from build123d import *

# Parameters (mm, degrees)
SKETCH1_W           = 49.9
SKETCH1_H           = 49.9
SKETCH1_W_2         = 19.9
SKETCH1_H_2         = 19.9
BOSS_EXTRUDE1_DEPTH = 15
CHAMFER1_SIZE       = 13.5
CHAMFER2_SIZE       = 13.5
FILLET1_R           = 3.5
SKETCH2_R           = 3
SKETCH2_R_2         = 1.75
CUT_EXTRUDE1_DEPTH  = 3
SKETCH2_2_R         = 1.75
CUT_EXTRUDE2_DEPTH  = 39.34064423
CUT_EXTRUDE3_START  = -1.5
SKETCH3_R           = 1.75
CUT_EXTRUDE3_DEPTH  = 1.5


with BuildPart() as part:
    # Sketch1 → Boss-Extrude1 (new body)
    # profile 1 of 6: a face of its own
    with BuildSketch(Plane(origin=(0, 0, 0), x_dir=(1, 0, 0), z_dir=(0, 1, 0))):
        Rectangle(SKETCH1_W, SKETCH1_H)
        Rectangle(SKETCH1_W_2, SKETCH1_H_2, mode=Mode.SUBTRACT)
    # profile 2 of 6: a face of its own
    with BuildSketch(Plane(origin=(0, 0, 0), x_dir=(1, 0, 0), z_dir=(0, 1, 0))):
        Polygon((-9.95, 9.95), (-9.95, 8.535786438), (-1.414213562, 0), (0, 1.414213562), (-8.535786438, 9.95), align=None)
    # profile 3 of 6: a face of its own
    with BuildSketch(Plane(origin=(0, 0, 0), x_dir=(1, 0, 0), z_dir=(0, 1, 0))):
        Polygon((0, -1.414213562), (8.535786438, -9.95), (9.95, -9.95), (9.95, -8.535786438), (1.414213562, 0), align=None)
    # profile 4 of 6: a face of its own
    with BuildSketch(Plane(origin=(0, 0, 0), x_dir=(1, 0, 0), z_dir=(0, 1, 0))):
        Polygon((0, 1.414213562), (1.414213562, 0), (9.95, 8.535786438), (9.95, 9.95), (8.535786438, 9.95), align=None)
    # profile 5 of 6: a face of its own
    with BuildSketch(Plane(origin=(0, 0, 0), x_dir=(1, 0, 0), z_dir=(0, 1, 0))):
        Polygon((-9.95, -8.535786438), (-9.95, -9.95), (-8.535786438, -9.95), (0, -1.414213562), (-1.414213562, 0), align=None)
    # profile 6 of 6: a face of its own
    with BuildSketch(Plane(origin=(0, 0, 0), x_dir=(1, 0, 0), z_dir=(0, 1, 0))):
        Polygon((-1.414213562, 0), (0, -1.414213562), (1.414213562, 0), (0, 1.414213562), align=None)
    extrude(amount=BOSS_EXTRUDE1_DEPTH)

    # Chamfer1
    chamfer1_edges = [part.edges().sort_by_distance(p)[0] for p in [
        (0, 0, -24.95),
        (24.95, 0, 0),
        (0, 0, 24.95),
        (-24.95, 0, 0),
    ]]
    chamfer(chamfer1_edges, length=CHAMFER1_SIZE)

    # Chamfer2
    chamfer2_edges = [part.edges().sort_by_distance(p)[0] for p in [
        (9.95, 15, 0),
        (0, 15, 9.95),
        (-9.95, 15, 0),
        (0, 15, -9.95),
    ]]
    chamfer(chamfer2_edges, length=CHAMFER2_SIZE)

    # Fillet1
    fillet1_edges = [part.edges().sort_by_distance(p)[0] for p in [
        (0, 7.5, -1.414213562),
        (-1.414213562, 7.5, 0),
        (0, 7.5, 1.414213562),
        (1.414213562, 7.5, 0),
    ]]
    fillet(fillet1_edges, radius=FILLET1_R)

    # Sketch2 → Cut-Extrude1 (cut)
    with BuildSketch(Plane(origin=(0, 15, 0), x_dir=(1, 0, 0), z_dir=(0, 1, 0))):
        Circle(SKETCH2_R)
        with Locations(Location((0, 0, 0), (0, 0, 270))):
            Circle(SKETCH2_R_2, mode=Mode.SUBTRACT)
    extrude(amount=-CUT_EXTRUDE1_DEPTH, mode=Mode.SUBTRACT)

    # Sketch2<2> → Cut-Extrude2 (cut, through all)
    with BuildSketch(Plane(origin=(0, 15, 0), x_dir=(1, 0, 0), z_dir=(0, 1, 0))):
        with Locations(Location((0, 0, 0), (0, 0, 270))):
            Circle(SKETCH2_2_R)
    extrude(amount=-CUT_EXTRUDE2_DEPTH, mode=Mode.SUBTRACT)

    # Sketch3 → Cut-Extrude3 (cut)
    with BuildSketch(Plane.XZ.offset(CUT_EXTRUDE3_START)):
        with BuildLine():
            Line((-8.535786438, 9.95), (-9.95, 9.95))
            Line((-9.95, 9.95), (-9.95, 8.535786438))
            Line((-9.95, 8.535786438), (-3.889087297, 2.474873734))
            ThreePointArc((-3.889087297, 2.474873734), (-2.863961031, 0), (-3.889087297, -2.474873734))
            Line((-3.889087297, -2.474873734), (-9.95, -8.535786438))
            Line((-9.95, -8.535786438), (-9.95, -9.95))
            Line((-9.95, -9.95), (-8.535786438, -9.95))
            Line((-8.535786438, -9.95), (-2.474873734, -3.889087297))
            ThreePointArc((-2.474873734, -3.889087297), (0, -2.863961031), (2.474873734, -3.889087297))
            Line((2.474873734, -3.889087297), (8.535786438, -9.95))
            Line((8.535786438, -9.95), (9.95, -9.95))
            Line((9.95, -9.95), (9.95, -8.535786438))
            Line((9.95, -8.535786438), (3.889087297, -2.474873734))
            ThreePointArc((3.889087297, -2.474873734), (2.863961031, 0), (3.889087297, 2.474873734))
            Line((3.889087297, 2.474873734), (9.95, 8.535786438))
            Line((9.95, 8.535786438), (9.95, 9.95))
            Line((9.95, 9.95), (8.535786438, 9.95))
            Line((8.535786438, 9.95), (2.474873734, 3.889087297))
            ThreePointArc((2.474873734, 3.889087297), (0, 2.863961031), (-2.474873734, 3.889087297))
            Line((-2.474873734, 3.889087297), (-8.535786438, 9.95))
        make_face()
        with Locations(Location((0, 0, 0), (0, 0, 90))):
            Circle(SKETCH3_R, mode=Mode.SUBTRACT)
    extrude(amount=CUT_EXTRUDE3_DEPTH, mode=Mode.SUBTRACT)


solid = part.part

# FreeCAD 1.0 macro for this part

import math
import FreeCAD as App
import Part
import Sketcher
from FreeCAD import Vector
Q = App.Units.Quantity


def edges_at(feature, points):
    """Names of the edges that pass closest to the given points."""
    edges = feature.Shape.Edges
    near = lambda p: min(range(len(edges)), key=lambda i: edges[i].distToShape(Part.Vertex(*p))[0])
    return sorted({f"Edge{near(p) + 1}" for p in points})

doc = App.newDocument("Part")
params = doc.addObject("Spreadsheet::Sheet", "Params")
for row, (alias, value) in enumerate([
    ("sketch1_width", "49.9 mm"),
    ("pad1_length", "15 mm"),
    ("chamfer_size", "13.5 mm"),
    ("chamfer2_size", "13.5 mm"),
    ("fillet_radius", "3.5 mm"),
    ("sketch2_diameter", "6 mm"),
    ("sketch2_diameter2", "3.5 mm"),
    ("pocket1_length", "3 mm"),
    ("sketch3_diameter", "3.5 mm"),
    ("sketch4_diameter", "3.5 mm"),
    ("sketch4_radius", "3.5 mm"),
    ("pocket3_length", "1.5 mm"),
], start=1):
    params.set(f"A{row}", alias)
    params.set(f"B{row}", "=" + value)
    params.setAlias(f"B{row}", alias)

body = doc.addObject("PartDesign::Body", "Body")

# Sketch on XZ plane
sketch1 = body.newObject("Sketcher::SketchObject", "Sketch")
sketch1.AttachmentSupport = (doc.getObject("XZ_Plane"), [""])
sketch1.MapMode = "FlatFace"
sketch1.addGeometry([
    Part.LineSegment(Vector(-25, -25, 0), Vector(-25, 25, 0)),  # 0
    Part.LineSegment(Vector(-25, 25, 0), Vector(25, 25, 0)),  # 1
    Part.LineSegment(Vector(25, 25, 0), Vector(25, -25, 0)),  # 2
    Part.LineSegment(Vector(25, -25, 0), Vector(-25, -25, 0)),  # 3
    Part.LineSegment(Vector(9, 10, 0), Vector(-9, 10, 0)),  # 4
    Part.LineSegment(Vector(-9, 10, 0), Vector(0, 1, 0)),  # 5
    Part.LineSegment(Vector(0, 1, 0), Vector(9, 10, 0)),  # 6
    Part.LineSegment(Vector(10, -9, 0), Vector(10, 9, 0)),  # 7
    Part.LineSegment(Vector(10, 9, 0), Vector(1, 0, 0)),  # 8
    Part.LineSegment(Vector(1, 0, 0), Vector(10, -9, 0)),  # 9
    Part.LineSegment(Vector(-9, -10, 0), Vector(9, -10, 0)),  # 10
    Part.LineSegment(Vector(9, -10, 0), Vector(0, -1, 0)),  # 11
    Part.LineSegment(Vector(0, -1, 0), Vector(-9, -10, 0)),  # 12
    Part.LineSegment(Vector(-10, 9, 0), Vector(-10, -9, 0)),  # 13
    Part.LineSegment(Vector(-10, -9, 0), Vector(-1, 0, 0)),  # 14
    Part.LineSegment(Vector(-1, 0, 0), Vector(-10, 9, 0)),  # 15
], False)
sketch1.addConstraint([
    Sketcher.Constraint("Coincident", 0, 2, 1, 1),
    Sketcher.Constraint("Coincident", 1, 2, 2, 1),
    Sketcher.Constraint("Coincident", 2, 2, 3, 1),
    Sketcher.Constraint("Coincident", 3, 2, 0, 1),
    Sketcher.Constraint("Coincident", 4, 2, 5, 1),
    Sketcher.Constraint("Coincident", 5, 2, 6, 1),
    Sketcher.Constraint("Coincident", 6, 2, 4, 1),
    Sketcher.Constraint("Coincident", 7, 2, 8, 1),
    Sketcher.Constraint("Coincident", 8, 2, 9, 1),
    Sketcher.Constraint("Coincident", 9, 2, 7, 1),
    Sketcher.Constraint("Coincident", 10, 2, 11, 1),
    Sketcher.Constraint("Coincident", 11, 2, 12, 1),
    Sketcher.Constraint("Coincident", 12, 2, 10, 1),
    Sketcher.Constraint("Coincident", 13, 2, 14, 1),
    Sketcher.Constraint("Coincident", 14, 2, 15, 1),
    Sketcher.Constraint("Coincident", 15, 2, 13, 1),
    Sketcher.Constraint("Vertical", 0),
    Sketcher.Constraint("Horizontal", 1),
    Sketcher.Constraint("Vertical", 2),
    Sketcher.Constraint("Horizontal", 3),
    Sketcher.Constraint("Horizontal", 4),
    Sketcher.Constraint("Vertical", 7),
    Sketcher.Constraint("Horizontal", 10),
    Sketcher.Constraint("Vertical", 13),
    Sketcher.Constraint("Symmetric", 0, 2, 2, 2, -1, 1),
    Sketcher.Constraint("Symmetric", 4, 2, 10, 2, -1, 1),
    Sketcher.Constraint("Symmetric", 5, 2, 11, 2, -1, 1),
    Sketcher.Constraint("Symmetric", 7, 2, 13, 2, -1, 1),
    Sketcher.Constraint("Symmetric", 8, 2, 14, 2, -1, 1),
    Sketcher.Constraint("PointOnObject", 5, 2, -2),
    Sketcher.Constraint("PointOnObject", 8, 2, -1),
    Sketcher.Constraint("Perpendicular", 5, 6),
    Sketcher.Constraint("Parallel", 6, 8),
    Sketcher.Constraint("Perpendicular", 8, 9),
    Sketcher.Constraint("Perpendicular", 11, 12),
    Sketcher.Constraint("Perpendicular", 14, 15),
    Sketcher.Constraint("Horizontal", 9, 2, 13, 2),
    Sketcher.Constraint("Equal", 3, 0),
    Sketcher.Constraint("Equal", 10, 7),
    Sketcher.Constraint("DistanceX", 1, 1, 1, 2, Q("49.9 mm")),
    Sketcher.Constraint("DistanceY", 4, 2, 0, 2, Q("15 mm")),
    Sketcher.Constraint("DistanceX", 7, 2, 1, 2, Q("15 mm")),
    Sketcher.Constraint("DistanceX", 4, 2, 4, 1, Q("17.071573 mm")),
])
sketch1.setExpression("Constraints[39]", "Params.sketch1_width")
pad1 = body.newObject("PartDesign::Pad", "Pad")
pad1.Profile = sketch1
pad1.setExpression("Length", "Params.pad1_length")
pad1.Reversed = True
doc.recompute()

chamfer = body.newObject("PartDesign::Chamfer", "Chamfer")
chamfer.Base = (pad1, edges_at(pad1, [
    (0, 0, -24.95),
    (24.95, 0, 0),
    (0, 0, 24.95),
    (-24.95, 0, 0),
]))
chamfer.setExpression("Size", "Params.chamfer_size")
doc.recompute()

chamfer2 = body.newObject("PartDesign::Chamfer", "Chamfer001")
chamfer2.Base = (chamfer, edges_at(chamfer, [
    (9.95, 15, 0),
    (0, 15, 9.95),
    (-9.95, 15, 0),
    (0, 15, -9.95),
]))
chamfer2.setExpression("Size", "Params.chamfer2_size")
doc.recompute()

fillet = body.newObject("PartDesign::Fillet", "Fillet")
fillet.Base = (chamfer2, edges_at(chamfer2, [
    (0, 7.5, -1.414),
    (-1.414, 7.5, 0),
    (0, 7.5, 1.414),
    (1.414, 7.5, 0),
]))
fillet.setExpression("Radius", "Params.fillet_radius")

# Sketch on XZ plane
sketch2 = body.newObject("Sketcher::SketchObject", "Sketch001")
sketch2.AttachmentSupport = (doc.getObject("XZ_Plane"), [""])
sketch2.MapMode = "FlatFace"
sketch2.AttachmentOffset = App.Placement(Vector(0, 0, -15), App.Rotation())
sketch2.addGeometry([
    Part.Circle(Vector(0, 0, 0), Vector(0, 0, 1), 3),
    Part.Circle(Vector(0, 0, 0), Vector(0, 0, 1), 1.8),
], False)
sketch2.addConstraint([
    Sketcher.Constraint("Coincident", 0, 3, -1, 1),
    Sketcher.Constraint("Coincident", 1, 3, -1, 1),
    Sketcher.Constraint("Diameter", 0, Q("6 mm")),
    Sketcher.Constraint("Diameter", 1, Q("3.5 mm")),
])
sketch2.setExpression("Constraints[2]", "Params.sketch2_diameter")
sketch2.setExpression("Constraints[3]", "Params.sketch2_diameter2")
pocket1 = body.newObject("PartDesign::Pocket", "Pocket")
pocket1.Profile = sketch2
pocket1.setExpression("Length", "Params.pocket1_length")
pocket1.Reversed = True

# Sketch on XZ plane
sketch3 = body.newObject("Sketcher::SketchObject", "Sketch002")
sketch3.AttachmentSupport = (doc.getObject("XZ_Plane"), [""])
sketch3.MapMode = "FlatFace"
sketch3.AttachmentOffset = App.Placement(Vector(0, 0, -15), App.Rotation())
sketch3.addGeometry(Part.Circle(Vector(0, 0, 0), Vector(0, 0, 1), 1.8), False)
sketch3.addConstraint([
    Sketcher.Constraint("Coincident", 0, 3, -1, 1),
    Sketcher.Constraint("Diameter", 0, Q("3.5 mm")),
])
sketch3.setExpression("Constraints[1]", "Params.sketch3_diameter")
pocket2 = body.newObject("PartDesign::Pocket", "Pocket001")
pocket2.Profile = sketch3
pocket2.Type = "ThroughAll"
pocket2.Reversed = True

# Sketch on XZ plane
sketch4 = body.newObject("Sketcher::SketchObject", "Sketch003")
sketch4.AttachmentSupport = (doc.getObject("XZ_Plane"), [""])
sketch4.MapMode = "FlatFace"
sketch4.AttachmentOffset = App.Placement(Vector(0, 0, -1.5), App.Rotation())
sketch4.addGeometry([
    Part.LineSegment(Vector(-8.5, 9.9, 0), Vector(-9.9, 9.9, 0)),  # 0
    Part.LineSegment(Vector(-9.9, 9.9, 0), Vector(-9.9, 8.5, 0)),  # 1
    Part.LineSegment(Vector(-9.9, 8.5, 0), Vector(-3.9, 2.5, 0)),  # 2
    Part.ArcOfCircle(Part.Circle(Vector(-6.4, 0, 0), Vector(0, 0, 1), 3.5), math.radians(-45), math.radians(45)),  # 3
    Part.LineSegment(Vector(-3.9, -2.5, 0), Vector(-9.9, -8.5, 0)),  # 4
    Part.LineSegment(Vector(-9.9, -8.5, 0), Vector(-9.9, -9.9, 0)),  # 5
    Part.LineSegment(Vector(-9.9, -9.9, 0), Vector(-8.5, -9.9, 0)),  # 6
    Part.LineSegment(Vector(-8.5, -9.9, 0), Vector(-2.5, -3.9, 0)),  # 7
    Part.ArcOfCircle(Part.Circle(Vector(0, -6.4, 0), Vector(0, 0, 1), 3.5), math.radians(45), math.radians(135)),  # 8
    Part.LineSegment(Vector(2.5, -3.9, 0), Vector(8.5, -9.9, 0)),  # 9
    Part.LineSegment(Vector(8.5, -9.9, 0), Vector(9.9, -9.9, 0)),  # 10
    Part.LineSegment(Vector(9.9, -9.9, 0), Vector(9.9, -8.5, 0)),  # 11
    Part.LineSegment(Vector(9.9, -8.5, 0), Vector(3.9, -2.5, 0)),  # 12
    Part.ArcOfCircle(Part.Circle(Vector(6.4, 0, 0), Vector(0, 0, 1), 3.5), math.radians(135), math.radians(225)),  # 13
    Part.LineSegment(Vector(3.9, 2.5, 0), Vector(9.9, 8.5, 0)),  # 14
    Part.LineSegment(Vector(9.9, 8.5, 0), Vector(9.9, 9.9, 0)),  # 15
    Part.LineSegment(Vector(9.9, 9.9, 0), Vector(8.5, 9.9, 0)),  # 16
    Part.LineSegment(Vector(8.5, 9.9, 0), Vector(2.5, 3.9, 0)),  # 17
    Part.ArcOfCircle(Part.Circle(Vector(0, 6.4, 0), Vector(0, 0, 1), 3.5), math.radians(-135), math.radians(-45)),  # 18
    Part.LineSegment(Vector(-2.5, 3.9, 0), Vector(-8.5, 9.9, 0)),  # 19
    Part.Circle(Vector(0, 0, 0), Vector(0, 0, 1), 1.8),  # 20
], False)
sketch4.addConstraint([
    Sketcher.Constraint("Coincident", 0, 2, 1, 1),
    Sketcher.Constraint("Coincident", 1, 2, 2, 1),
    Sketcher.Constraint("Tangent", 2, 2, 3, 2),
    Sketcher.Constraint("Tangent", 3, 1, 4, 1),
    Sketcher.Constraint("Coincident", 4, 2, 5, 1),
    Sketcher.Constraint("Coincident", 5, 2, 6, 1),
    Sketcher.Constraint("Coincident", 6, 2, 7, 1),
    Sketcher.Constraint("Tangent", 7, 2, 8, 2),
    Sketcher.Constraint("Tangent", 8, 1, 9, 1),
    Sketcher.Constraint("Coincident", 9, 2, 10, 1),
    Sketcher.Constraint("Coincident", 10, 2, 11, 1),
    Sketcher.Constraint("Coincident", 11, 2, 12, 1),
    Sketcher.Constraint("Tangent", 12, 2, 13, 2),
    Sketcher.Constraint("Tangent", 13, 1, 14, 1),
    Sketcher.Constraint("Coincident", 14, 2, 15, 1),
    Sketcher.Constraint("Coincident", 15, 2, 16, 1),
    Sketcher.Constraint("Coincident", 16, 2, 17, 1),
    Sketcher.Constraint("Tangent", 17, 2, 18, 2),
    Sketcher.Constraint("Tangent", 18, 1, 19, 1),
    Sketcher.Constraint("Coincident", 19, 2, 0, 1),
    Sketcher.Constraint("Horizontal", 0),
    Sketcher.Constraint("Vertical", 1),
    Sketcher.Constraint("Vertical", 5),
    Sketcher.Constraint("Horizontal", 6),
    Sketcher.Constraint("Horizontal", 10),
    Sketcher.Constraint("Vertical", 11),
    Sketcher.Constraint("Vertical", 15),
    Sketcher.Constraint("Horizontal", 16),
    Sketcher.Constraint("Coincident", 20, 3, -1, 1),
    Sketcher.Constraint("Equal", 3, 8),
    Sketcher.Constraint("Equal", 8, 13),
    Sketcher.Constraint("Equal", 13, 18),
    Sketcher.Constraint("Symmetric", 3, 3, 13, 3, -1, 1),
    Sketcher.Constraint("Symmetric", 8, 3, 18, 3, -1, 1),
    Sketcher.Constraint("Symmetric", 0, 2, 10, 2, -1, 1),
    Sketcher.Constraint("Symmetric", 4, 2, 14, 2, -1, 1),
    Sketcher.Constraint("Symmetric", 6, 2, 16, 2, -1, 1),
    Sketcher.Constraint("Symmetric", 7, 2, 8, 1, -2),
    Sketcher.Constraint("Symmetric", 5, 2, 10, 2, -2),
    Sketcher.Constraint("Symmetric", 3, 1, 12, 2, -2),
    Sketcher.Constraint("Perpendicular", 2, 4),
    Sketcher.Constraint("Parallel", 4, 7),
    Sketcher.Constraint("Perpendicular", 7, 9),
    Sketcher.Constraint("Perpendicular", 17, 19),
    Sketcher.Constraint("Equal", 16, 1),
    Sketcher.Constraint("Equal", 4, 7),
    Sketcher.Constraint("Diameter", 20, Q("3.5 mm")),
    Sketcher.Constraint("Radius", 3, Q("3.5 mm")),
    Sketcher.Constraint("DistanceX", 0, 2, -1, 1, Q("9.95 mm")),
    Sketcher.Constraint("DistanceX", 6, 2, 3, 1, Q("4.646699 mm")),
])
sketch4.setExpression("Constraints[46]", "Params.sketch4_diameter")
sketch4.setExpression("Constraints[47]", "Params.sketch4_radius")
pocket3 = body.newObject("PartDesign::Pocket", "Pocket002")
pocket3.Profile = sketch4
pocket3.setExpression("Length", "Params.pocket3_length")
pocket3.Reversed = True

doc.recompute()
